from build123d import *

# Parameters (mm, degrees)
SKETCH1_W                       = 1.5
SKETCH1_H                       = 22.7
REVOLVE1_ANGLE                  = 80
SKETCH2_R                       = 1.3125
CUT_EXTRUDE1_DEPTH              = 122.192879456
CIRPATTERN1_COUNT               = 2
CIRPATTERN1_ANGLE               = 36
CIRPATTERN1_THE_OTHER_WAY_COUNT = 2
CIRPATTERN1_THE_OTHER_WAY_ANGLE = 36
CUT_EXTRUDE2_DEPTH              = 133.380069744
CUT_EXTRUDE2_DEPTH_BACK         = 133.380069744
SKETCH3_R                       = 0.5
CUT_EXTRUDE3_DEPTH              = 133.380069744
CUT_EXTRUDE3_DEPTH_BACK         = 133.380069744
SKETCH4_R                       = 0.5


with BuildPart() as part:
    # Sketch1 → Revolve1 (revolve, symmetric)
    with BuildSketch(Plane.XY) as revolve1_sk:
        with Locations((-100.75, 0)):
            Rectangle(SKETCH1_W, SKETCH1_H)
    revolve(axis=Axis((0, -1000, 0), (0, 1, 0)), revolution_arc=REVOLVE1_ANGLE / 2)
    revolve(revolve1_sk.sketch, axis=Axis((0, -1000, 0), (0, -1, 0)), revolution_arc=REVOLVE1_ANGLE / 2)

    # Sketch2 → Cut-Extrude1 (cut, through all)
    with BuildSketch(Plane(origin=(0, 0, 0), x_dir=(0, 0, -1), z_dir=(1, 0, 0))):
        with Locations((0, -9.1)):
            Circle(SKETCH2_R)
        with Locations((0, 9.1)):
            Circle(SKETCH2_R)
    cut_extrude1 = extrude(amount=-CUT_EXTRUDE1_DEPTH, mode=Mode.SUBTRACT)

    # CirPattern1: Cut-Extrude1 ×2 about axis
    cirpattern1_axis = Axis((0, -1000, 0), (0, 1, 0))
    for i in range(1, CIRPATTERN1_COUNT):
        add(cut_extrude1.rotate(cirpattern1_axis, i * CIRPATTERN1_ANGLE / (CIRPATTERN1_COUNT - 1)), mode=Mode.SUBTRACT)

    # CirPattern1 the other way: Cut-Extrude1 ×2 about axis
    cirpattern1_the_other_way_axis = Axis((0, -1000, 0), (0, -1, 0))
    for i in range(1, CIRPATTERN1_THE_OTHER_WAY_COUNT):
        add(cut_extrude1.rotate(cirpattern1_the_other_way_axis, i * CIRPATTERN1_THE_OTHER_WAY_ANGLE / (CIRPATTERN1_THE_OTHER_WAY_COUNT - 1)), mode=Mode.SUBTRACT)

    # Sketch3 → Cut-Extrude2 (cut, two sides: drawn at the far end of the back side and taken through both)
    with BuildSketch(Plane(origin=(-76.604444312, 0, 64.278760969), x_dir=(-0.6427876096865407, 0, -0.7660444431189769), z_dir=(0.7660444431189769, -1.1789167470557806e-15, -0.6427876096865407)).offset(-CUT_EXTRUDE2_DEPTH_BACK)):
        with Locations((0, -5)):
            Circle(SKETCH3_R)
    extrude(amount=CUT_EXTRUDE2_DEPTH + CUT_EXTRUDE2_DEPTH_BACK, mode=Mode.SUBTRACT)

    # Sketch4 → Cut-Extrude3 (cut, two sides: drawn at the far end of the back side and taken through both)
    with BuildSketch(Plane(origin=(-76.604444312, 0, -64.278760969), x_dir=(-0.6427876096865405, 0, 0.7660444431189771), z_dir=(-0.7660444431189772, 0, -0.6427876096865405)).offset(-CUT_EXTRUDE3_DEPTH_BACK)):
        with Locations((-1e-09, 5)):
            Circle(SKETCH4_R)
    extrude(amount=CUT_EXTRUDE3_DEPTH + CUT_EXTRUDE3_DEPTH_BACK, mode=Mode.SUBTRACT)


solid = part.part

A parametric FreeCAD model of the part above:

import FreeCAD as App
import Part
import Sketcher
from FreeCAD import Vector
Q = App.Units.Quantity


def add_polygon(sketch, points):
    """Adds a closed chain of lines whose ends are joined by coincident constraints."""
    first, n = sketch.GeometryCount, len(points)
    for a, b in zip(points, points[1:] + points[:1]):
        sketch.addGeometry(Part.LineSegment(App.Vector(*a, 0), App.Vector(*b, 0)), False)
    for i in range(n):
        sketch.addConstraint(Sketcher.Constraint("Coincident", first + i, 2, first + (i + 1) % n, 1))

doc = App.newDocument("Part")
params = doc.addObject("Spreadsheet::Sheet", "Params")
for row, (alias, value) in enumerate([
    ("sketch1_width", "1.5 mm"),
    ("sketch1_height", "22.7 mm"),
    ("revolution_angle", "40 deg"),
    ("sketch2_width", "1.5 mm"),
    ("sketch2_height", "22.7 mm"),
    ("revolution2_angle", "40 deg"),
    ("sketch4_diameter", "1 mm"),
    ("sketch5_diameter", "1 mm"),
], start=1):
    params.set(f"A{row}", alias)
    params.set(f"B{row}", "=" + value)
    params.setAlias(f"B{row}", alias)

body = doc.addObject("PartDesign::Body", "Body")

# Sketch on XY plane
sketch1 = body.newObject("Sketcher::SketchObject", "Sketch")
sketch1.AttachmentSupport = (doc.getObject("XY_Plane"), [""])
sketch1.MapMode = "FlatFace"
add_polygon(sketch1, [(-101.5, 11.3), (-101.5, -11.3), (-100, -11.3), (-100, 11.3)])  # lines 0-3
sketch1.addConstraint([
    Sketcher.Constraint("Vertical", 0),
    Sketcher.Constraint("Horizontal", 1),
    Sketcher.Constraint("Vertical", 2),
    Sketcher.Constraint("Horizontal", 3),
    Sketcher.Constraint("DistanceX", 1, 1, 1, 2, Q("1.5 mm")),
    Sketcher.Constraint("DistanceY", 0, 2, 0, 1, Q("22.7 mm")),
    Sketcher.Constraint("DistanceX", 1, 2, -1, 1, Q("100 mm")),
    Sketcher.Constraint("DistanceY", 0, 2, -1, 1, Q("11.35 mm")),
])
sketch1.setExpression("Constraints[8]", "Params.sketch1_width")
sketch1.setExpression("Constraints[9]", "Params.sketch1_height")
revolution = body.newObject("PartDesign::Revolution", "Revolution")
revolution.Profile = sketch1
revolution.ReferenceAxis = (sketch1, ["V_Axis"])
revolution.setExpression("Angle", "Params.revolution_angle")

# Sketch on XY plane
sketch2 = body.newObject("Sketcher::SketchObject", "Sketch001")
sketch2.AttachmentSupport = (doc.getObject("XY_Plane"), [""])
sketch2.MapMode = "FlatFace"
add_polygon(sketch2, [(-101.5, 11.3), (-101.5, -11.3), (-100, -11.3), (-100, 11.3)])  # lines 0-3
sketch2.addConstraint([
    Sketcher.Constraint("Vertical", 0),
    Sketcher.Constraint("Horizontal", 1),
    Sketcher.Constraint("Vertical", 2),
    Sketcher.Constraint("Horizontal", 3),
    Sketcher.Constraint("DistanceX", 1, 1, 1, 2, Q("1.5 mm")),
    Sketcher.Constraint("DistanceY", 0, 2, 0, 1, Q("22.7 mm")),
    Sketcher.Constraint("DistanceX", 1, 2, -1, 1, Q("100 mm")),
    Sketcher.Constraint("DistanceY", 0, 2, -1, 1, Q("11.35 mm")),
])
sketch2.setExpression("Constraints[8]", "Params.sketch2_width")
sketch2.setExpression("Constraints[9]", "Params.sketch2_height")
revolution2 = body.newObject("PartDesign::Revolution", "Revolution001")
revolution2.Profile = sketch2
revolution2.ReferenceAxis = (sketch2, ["V_Axis"])
revolution2.setExpression("Angle", "Params.revolution2_angle")
revolution2.Reversed = True

# Sketch on YZ plane
sketch3 = body.newObject("Sketcher::SketchObject", "Sketch002")
sketch3.AttachmentSupport = (doc.getObject("YZ_Plane"), [""])
sketch3.MapMode = "FlatFace"
sketch3.addGeometry([
    Part.Circle(Vector(-9.1, 0, 0), Vector(0, 0, 1), 1.3),
    Part.Circle(Vector(9.1, 0, 0), Vector(0, 0, 1), 1.3),
], False)
sketch3.addConstraint([
    Sketcher.Constraint("Equal", 0, 1),
    Sketcher.Constraint("Symmetric", 0, 3, 1, 3, -1, 1),
    Sketcher.Constraint("PointOnObject", 0, 3, -1),
    Sketcher.Constraint("Diameter", 0, Q("2.625 mm")),
    Sketcher.Constraint("DistanceX", 0, 3, -1, 1, Q("9.1 mm")),
])
pocket1 = body.newObject("PartDesign::Pocket", "Pocket")
pocket1.Profile = sketch3
pocket1.Type = "ThroughAll"
doc.recompute()

polarpattern = body.newObject("PartDesign::PolarPattern", "PolarPattern")
polarpattern.Originals = [pocket1]
polarpattern.Axis = (doc.getObject("Y_Axis"), [""])
polarpattern.Angle = 36
polarpattern.Occurrences = 2
body.Tip = polarpattern
doc.recompute()

polarpattern2 = body.newObject("PartDesign::PolarPattern", "PolarPattern001")
polarpattern2.Originals = [pocket1]
polarpattern2.Axis = (doc.getObject("Y_Axis"), [""])
polarpattern2.Angle = 36
polarpattern2.Occurrences = 2
polarpattern2.Reversed = True
body.Tip = polarpattern2

# Sketch on an angled plane
sketch4 = body.newObject("Sketcher::SketchObject", "Sketch003")
sketch4.Placement = App.Placement(Vector(-76.604444, 0, 64.278761), App.Rotation(Vector(-0.64278761, 0, -0.766044443), Vector(0, 1, 0), Vector(0.766044443, 0, -0.64278761), "ZXY"))
sketch4.addGeometry(Part.Circle(Vector(0, -5, 0), Vector(0, 0, 1), 0.5), False)
sketch4.addConstraint([
    Sketcher.Constraint("PointOnObject", 0, 3, -2),
    Sketcher.Constraint("Diameter", 0, Q("1 mm")),
    Sketcher.Constraint("DistanceY", 0, 3, -1, 1, Q("5 mm")),
])
sketch4.setExpression("Constraints[1]", "Params.sketch4_diameter")
pocket2 = body.newObject("PartDesign::Pocket", "Pocket001")
pocket2.Profile = sketch4
pocket2.Type = "ThroughAll"
pocket2.Midplane = True

# Sketch on an angled plane
sketch5 = body.newObject("Sketcher::SketchObject", "Sketch004")
sketch5.Placement = App.Placement(Vector(-76.604444, 0, -64.278761), App.Rotation(Vector(-0.64278761, 0, 0.766044443), Vector(0, 1, 0), Vector(-0.766044443, 0, -0.64278761), "ZXY"))
sketch5.addGeometry(Part.Circle(Vector(0, 5, 0), Vector(0, 0, 1), 0.5), False)
sketch5.addConstraint([
    Sketcher.Constraint("PointOnObject", 0, 3, -2),
    Sketcher.Constraint("Diameter", 0, Q("1 mm")),
    Sketcher.Constraint("DistanceY", -1, 1, 0, 3, Q("5 mm")),
])
sketch5.setExpression("Constraints[1]", "Params.sketch5_diameter")
pocket3 = body.newObject("PartDesign::Pocket", "Pocket002")
pocket3.Profile = sketch5
pocket3.Type = "ThroughAll"
pocket3.Midplane = True

doc.recompute()
